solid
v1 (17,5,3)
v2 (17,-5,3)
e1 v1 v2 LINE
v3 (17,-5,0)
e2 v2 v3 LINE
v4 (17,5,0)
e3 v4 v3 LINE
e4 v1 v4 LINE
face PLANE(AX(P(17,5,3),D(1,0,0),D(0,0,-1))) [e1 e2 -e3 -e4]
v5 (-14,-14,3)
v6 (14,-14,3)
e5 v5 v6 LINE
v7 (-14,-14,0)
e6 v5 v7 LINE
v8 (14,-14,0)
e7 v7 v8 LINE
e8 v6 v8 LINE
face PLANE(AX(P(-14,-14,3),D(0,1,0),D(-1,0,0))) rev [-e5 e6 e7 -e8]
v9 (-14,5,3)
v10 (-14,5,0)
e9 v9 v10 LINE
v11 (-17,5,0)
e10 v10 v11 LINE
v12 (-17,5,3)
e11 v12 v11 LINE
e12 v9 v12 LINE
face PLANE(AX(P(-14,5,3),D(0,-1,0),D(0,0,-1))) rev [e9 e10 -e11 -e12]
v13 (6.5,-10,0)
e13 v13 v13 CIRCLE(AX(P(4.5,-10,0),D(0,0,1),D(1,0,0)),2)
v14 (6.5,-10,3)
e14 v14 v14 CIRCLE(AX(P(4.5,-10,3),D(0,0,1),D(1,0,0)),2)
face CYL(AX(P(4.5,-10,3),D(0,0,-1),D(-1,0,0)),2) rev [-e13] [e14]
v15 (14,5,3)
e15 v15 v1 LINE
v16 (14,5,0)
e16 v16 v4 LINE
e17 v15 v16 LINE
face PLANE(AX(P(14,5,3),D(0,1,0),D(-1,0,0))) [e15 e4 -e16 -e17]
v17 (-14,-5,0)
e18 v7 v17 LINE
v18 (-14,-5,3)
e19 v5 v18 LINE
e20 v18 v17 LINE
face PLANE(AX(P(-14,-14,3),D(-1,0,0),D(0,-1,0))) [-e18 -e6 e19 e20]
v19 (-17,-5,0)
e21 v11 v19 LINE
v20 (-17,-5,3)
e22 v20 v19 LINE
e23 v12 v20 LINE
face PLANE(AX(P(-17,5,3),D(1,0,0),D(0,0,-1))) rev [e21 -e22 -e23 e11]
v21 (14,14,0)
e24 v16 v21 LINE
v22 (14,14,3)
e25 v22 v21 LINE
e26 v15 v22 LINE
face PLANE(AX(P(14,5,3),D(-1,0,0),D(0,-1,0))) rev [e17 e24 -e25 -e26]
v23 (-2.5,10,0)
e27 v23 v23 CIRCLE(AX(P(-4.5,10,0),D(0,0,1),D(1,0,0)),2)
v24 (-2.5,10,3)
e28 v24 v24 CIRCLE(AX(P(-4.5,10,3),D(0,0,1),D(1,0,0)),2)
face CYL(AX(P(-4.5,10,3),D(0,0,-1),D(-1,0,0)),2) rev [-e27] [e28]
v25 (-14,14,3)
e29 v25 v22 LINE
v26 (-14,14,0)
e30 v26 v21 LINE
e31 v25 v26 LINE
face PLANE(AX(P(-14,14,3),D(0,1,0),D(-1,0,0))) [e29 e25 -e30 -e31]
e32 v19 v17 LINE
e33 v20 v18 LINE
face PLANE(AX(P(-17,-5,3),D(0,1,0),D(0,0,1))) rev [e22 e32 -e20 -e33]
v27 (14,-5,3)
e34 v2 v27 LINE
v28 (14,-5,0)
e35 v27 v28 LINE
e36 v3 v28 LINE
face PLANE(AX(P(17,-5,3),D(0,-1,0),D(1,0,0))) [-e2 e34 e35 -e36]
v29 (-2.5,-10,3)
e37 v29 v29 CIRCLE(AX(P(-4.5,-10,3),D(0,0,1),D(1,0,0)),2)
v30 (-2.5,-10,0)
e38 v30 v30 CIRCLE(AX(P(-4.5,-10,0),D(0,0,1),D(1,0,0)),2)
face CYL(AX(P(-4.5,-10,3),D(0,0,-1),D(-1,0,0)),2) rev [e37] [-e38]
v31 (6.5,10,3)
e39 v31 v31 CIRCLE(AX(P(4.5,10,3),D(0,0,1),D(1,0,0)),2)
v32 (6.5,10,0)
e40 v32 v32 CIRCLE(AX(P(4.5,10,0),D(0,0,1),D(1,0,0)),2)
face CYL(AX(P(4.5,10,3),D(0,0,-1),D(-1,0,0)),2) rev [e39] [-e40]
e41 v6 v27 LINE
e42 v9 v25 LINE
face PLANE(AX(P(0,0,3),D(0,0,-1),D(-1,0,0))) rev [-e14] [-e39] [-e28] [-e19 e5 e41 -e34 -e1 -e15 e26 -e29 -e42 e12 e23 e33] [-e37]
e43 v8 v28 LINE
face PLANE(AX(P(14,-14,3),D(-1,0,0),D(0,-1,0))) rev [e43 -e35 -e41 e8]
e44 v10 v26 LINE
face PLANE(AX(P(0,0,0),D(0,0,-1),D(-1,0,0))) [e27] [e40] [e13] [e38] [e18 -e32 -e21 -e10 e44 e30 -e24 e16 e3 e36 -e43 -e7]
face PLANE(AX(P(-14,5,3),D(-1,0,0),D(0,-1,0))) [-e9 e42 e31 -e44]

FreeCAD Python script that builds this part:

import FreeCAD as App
import Part
import Sketcher
from FreeCAD import Vector

doc = App.newDocument("Part")
body = doc.addObject("PartDesign::Body", "Body")

# Sketch on XY plane
sketch1 = doc.addObject("Sketcher::SketchObject", "Sketch")
body.addObject(sketch1)
sketch1.AttachmentSupport = (doc.XY_Plane, [""])
sketch1.MapMode = "FlatFace"
sketch1.addGeometry([
    Part.LineSegment(Vector(-14, -14, 0), Vector(14, -14, 0)),  # 0
    Part.LineSegment(Vector(14, -14, 0), Vector(14, -5, 0)),  # 1
    Part.LineSegment(Vector(14, -5, 0), Vector(17, -5, 0)),  # 2
    Part.LineSegment(Vector(17, -5, 0), Vector(17, 5, 0)),  # 3
    Part.LineSegment(Vector(17, 5, 0), Vector(14, 5, 0)),  # 4
    Part.LineSegment(Vector(14, 5, 0), Vector(14, 14, 0)),  # 5
    Part.LineSegment(Vector(14, 14, 0), Vector(-14, 14, 0)),  # 6
    Part.LineSegment(Vector(-14, 14, 0), Vector(-14, 5, 0)),  # 7
    Part.LineSegment(Vector(-14, 5, 0), Vector(-17, 5, 0)),  # 8
    Part.LineSegment(Vector(-17, 5, 0), Vector(-17, -5, 0)),  # 9
    Part.LineSegment(Vector(-17, -5, 0), Vector(-14, -5, 0)),  # 10
    Part.LineSegment(Vector(-14, -5, 0), Vector(-14, -14, 0)),  # 11
    Part.Circle(Vector(-4.5, -10, 0), Vector(0, 0, 1), 2),  # 12
    Part.Circle(Vector(4.5, -10, 0), Vector(0, 0, 1), 2),  # 13
    Part.Circle(Vector(-4.5, 10, 0), Vector(0, 0, 1), 2),  # 14
    Part.Circle(Vector(4.5, 10, 0), Vector(0, 0, 1), 2),  # 15
], False)
sketch1.addConstraint([
    Sketcher.Constraint("Coincident", 0, 2, 1, 1),
    Sketcher.Constraint("Coincident", 1, 2, 2, 1),
    Sketcher.Constraint("Coincident", 2, 2, 3, 1),
    Sketcher.Constraint("Coincident", 3, 2, 4, 1),
    Sketcher.Constraint("Coincident", 4, 2, 5, 1),
    Sketcher.Constraint("Coincident", 5, 2, 6, 1),
    Sketcher.Constraint("Coincident", 6, 2, 7, 1),
    Sketcher.Constraint("Coincident", 7, 2, 8, 1),
    Sketcher.Constraint("Coincident", 8, 2, 9, 1),
    Sketcher.Constraint("Coincident", 9, 2, 10, 1),
    Sketcher.Constraint("Coincident", 10, 2, 11, 1),
    Sketcher.Constraint("Coincident", 11, 2, 0, 1),
    Sketcher.Constraint("Horizontal", 0),
    Sketcher.Constraint("Vertical", 1),
    Sketcher.Constraint("Horizontal", 2),
    Sketcher.Constraint("Vertical", 3),
    Sketcher.Constraint("Horizontal", 4),
    Sketcher.Constraint("Vertical", 5),
    Sketcher.Constraint("Horizontal", 6),
    Sketcher.Constraint("Vertical", 7),
    Sketcher.Constraint("Horizontal", 8),
    Sketcher.Constraint("Vertical", 9),
    Sketcher.Constraint("Horizontal", 10),
    Sketcher.Constraint("Vertical", 11),
    Sketcher.Constraint("Equal", 12, 13),
    Sketcher.Constraint("Equal", 13, 14),
    Sketcher.Constraint("Equal", 14, 15),
    Sketcher.Constraint("Symmetric", 13, 3, 14, 3, -1, 1),
    Sketcher.Constraint("Symmetric", 12, 3, 15, 3, -1, 1),
    Sketcher.Constraint("Symmetric", 0, 2, 6, 2, -1, 1),
    Sketcher.Constraint("Symmetric", 2, 2, 8, 2, -1, 1),
    Sketcher.Constraint("Symmetric", 4, 2, 10, 2, -1, 1),
    Sketcher.Constraint("Symmetric", 12, 3, 13, 3, -2),
    Sketcher.Constraint("Symmetric", 4, 2, 7, 2, -2),
    Sketcher.Constraint("Diameter", 12, 4.0),
    Sketcher.Constraint("DistanceX", 0, 1, 0, 2, 28.0),
    Sketcher.Constraint("DistanceX", 2, 1, 2, 2, 3.0),
    Sketcher.Constraint("DistanceY", 1, 1, 1, 2, 9.0),
    Sketcher.Constraint("DistanceY", 3, 1, 3, 2, 10.0),
    Sketcher.Constraint("DistanceY", 12, 3, -1, 1, 10.0),
    Sketcher.Constraint("DistanceX", 12, 3, 13, 3, 9.0),
])
pad1 = doc.addObject("PartDesign::Pad", "Pad")
body.addObject(pad1)
pad1.Profile = sketch1
pad1.Length = 3

doc.recompute()
